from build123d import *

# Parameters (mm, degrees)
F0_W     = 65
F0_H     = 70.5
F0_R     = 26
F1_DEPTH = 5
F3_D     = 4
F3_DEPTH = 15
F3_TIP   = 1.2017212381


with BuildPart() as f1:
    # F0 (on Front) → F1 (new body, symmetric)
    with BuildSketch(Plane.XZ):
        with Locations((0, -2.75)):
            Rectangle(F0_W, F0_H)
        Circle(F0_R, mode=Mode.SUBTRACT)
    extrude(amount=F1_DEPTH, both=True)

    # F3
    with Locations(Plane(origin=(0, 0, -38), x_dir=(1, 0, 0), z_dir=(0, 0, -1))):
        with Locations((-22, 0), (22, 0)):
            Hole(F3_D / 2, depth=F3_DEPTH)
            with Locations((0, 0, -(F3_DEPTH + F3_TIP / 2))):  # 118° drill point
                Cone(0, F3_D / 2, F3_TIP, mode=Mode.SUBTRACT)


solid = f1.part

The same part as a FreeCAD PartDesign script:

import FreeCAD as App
import Part
import Sketcher


def add_polygon(sketch, points):
    """Adds a closed chain of lines whose ends are joined by coincident constraints."""
    first, n = sketch.GeometryCount, len(points)
    for a, b in zip(points, points[1:] + points[:1]):
        sketch.addGeometry(Part.LineSegment(App.Vector(*a, 0), App.Vector(*b, 0)), False)
    for i in range(n):
        sketch.addConstraint(Sketcher.Constraint("Coincident", first + i, 2, first + (i + 1) % n, 1))

doc = App.newDocument("Part")
body = doc.addObject("PartDesign::Body", "Body")

sketch1 = body.newObject("Sketcher::SketchObject", "Sketch")
sketch1.AttachmentSupport = (doc.getObject("XZ_Plane"), [""])
sketch1.MapMode = "FlatFace"
add_polygon(sketch1, [(-32, 32), (-32, -38), (32, -38), (32, 32)])
sketch1.addGeometry(Part.Circle(App.Vector(0, 0, 0), App.Vector(0, 0, 1), 26), False)
sketch1.addConstraint([
    Sketcher.Constraint("Vertical", 0),
    Sketcher.Constraint("Horizontal", 1),
    Sketcher.Constraint("Vertical", 2),
    Sketcher.Constraint("Horizontal", 3),
    Sketcher.Constraint("Coincident", 4, 3, -1, 1),
    Sketcher.Constraint("Diameter", 4, 52.0),
    Sketcher.Constraint("DistanceX", 1, 1, 1, 2, 65.0),
    Sketcher.Constraint("DistanceY", 0, 2, 0, 1, 70.5),
    Sketcher.Constraint("DistanceY", 0, 2, -1, 1, 38.0),
    Sketcher.Constraint("DistanceX", 0, 2, -1, 1, 32.5),
])
pad1 = body.newObject("PartDesign::Pad", "Pad")
pad1.Profile = sketch1
pad1.Length = 10
pad1.Midplane = True

sketch2 = body.newObject("Sketcher::SketchObject", "Sketch001")
sketch2.AttachmentSupport = (doc.getObject("XY_Plane"), [""])
sketch2.MapMode = "FlatFace"
sketch2.AttachmentOffset = App.Placement(App.Vector(0, 0, -38), App.Rotation())
sketch2.addGeometry([
    Part.Circle(App.Vector(-22, 0, 0), App.Vector(0, 0, 1), 2),
    Part.Circle(App.Vector(22, 0, 0), App.Vector(0, 0, 1), 2),
], False)
sketch2.addConstraint([
    Sketcher.Constraint("Equal", 0, 1),
    Sketcher.Constraint("Symmetric", 0, 3, 1, 3, -1, 1),
    Sketcher.Constraint("PointOnObject", 0, 3, -1),
    Sketcher.Constraint("Diameter", 0, 4.0),
    Sketcher.Constraint("DistanceX", 0, 3, -1, 1, 22.0),
])
doc.recompute()
hole = body.newObject("PartDesign::Hole", "Hole")
hole.Profile = sketch2
hole.ThreadType = "None"
hole.Diameter = 4
hole.DepthType = "Dimension"
hole.Depth = 15
hole.DrillPoint = "Angled"
hole.DrillPointAngle = 118
hole.Reversed = True

doc.recompute()
